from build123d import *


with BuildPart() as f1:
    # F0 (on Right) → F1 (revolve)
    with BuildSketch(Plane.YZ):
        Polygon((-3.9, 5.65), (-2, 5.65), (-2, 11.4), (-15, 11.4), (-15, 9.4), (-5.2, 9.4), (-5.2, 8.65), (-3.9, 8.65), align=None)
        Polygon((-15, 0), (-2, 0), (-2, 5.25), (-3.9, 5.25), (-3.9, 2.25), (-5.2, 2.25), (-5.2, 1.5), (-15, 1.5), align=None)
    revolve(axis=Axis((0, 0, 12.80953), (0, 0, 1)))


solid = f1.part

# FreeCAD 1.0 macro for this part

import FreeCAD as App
import Part
import Sketcher
from FreeCAD import Vector
Q = App.Units.Quantity


def add_polygon(sketch, points):
    """Adds a closed chain of lines whose ends are joined by coincident constraints."""
    first, n = sketch.GeometryCount, len(points)
    for a, b in zip(points, points[1:] + points[:1]):
        sketch.addGeometry(Part.LineSegment(App.Vector(*a, 0), App.Vector(*b, 0)), False)
    for i in range(n):
        sketch.addConstraint(Sketcher.Constraint("Coincident", first + i, 2, first + (i + 1) % n, 1))

doc = App.newDocument("Part")
body = doc.addObject("PartDesign::Body", "Body")
body.AllowCompound = True

sketch1 = body.newObject("Sketcher::SketchObject", "Sketch")
sketch1.AttachmentSupport = (doc.getObject("YZ_Plane"), [""])
sketch1.MapMode = "FlatFace"
add_polygon(sketch1, [(-3.9, 5.7), (-2, 5.7), (-2, 11.4), (-15, 11.4), (-15, 9.4), (-5.2, 9.4), (-5.2, 8.7), (-3.9, 8.7)])
add_polygon(sketch1, [(-15, 0), (-2, 0), (-2, 5.2), (-3.9, 5.2), (-3.9, 2.2), (-5.2, 2.2), (-5.2, 1.5), (-15, 1.5)])
sketch1.addConstraint([
    Sketcher.Constraint("Horizontal", 0),
    Sketcher.Constraint("Vertical", 1),
    Sketcher.Constraint("Horizontal", 2),
    Sketcher.Constraint("Vertical", 3),
    Sketcher.Constraint("Horizontal", 4),
    Sketcher.Constraint("Vertical", 5),
    Sketcher.Constraint("Horizontal", 6),
    Sketcher.Constraint("Vertical", 7),
    Sketcher.Constraint("Horizontal", 8),
    Sketcher.Constraint("Vertical", 9),
    Sketcher.Constraint("Horizontal", 10),
    Sketcher.Constraint("Vertical", 11),
    Sketcher.Constraint("Horizontal", 12),
    Sketcher.Constraint("Vertical", 13),
    Sketcher.Constraint("Horizontal", 14),
    Sketcher.Constraint("Vertical", 15),
    Sketcher.Constraint("PointOnObject", 8, 2, -1),
    Sketcher.Constraint("Vertical", 1, 2, 8, 2),
    Sketcher.Constraint("Vertical", 7, 2, 10, 2),
    Sketcher.Constraint("Vertical", 5, 2, 12, 2),
    Sketcher.Constraint("Vertical", 3, 2, 14, 2),
    Sketcher.Constraint("Equal", 7, 11),
    Sketcher.Constraint("Equal", 5, 13),
    Sketcher.Constraint("DistanceX", 2, 2, 2, 1, Q("13 mm")),
    Sketcher.Constraint("DistanceY", 3, 2, 3, 1, Q("2 mm")),
    Sketcher.Constraint("DistanceY", 7, 2, 7, 1, Q("3 mm")),
    Sketcher.Constraint("DistanceX", 0, 1, 0, 2, Q("1.9 mm")),
    Sketcher.Constraint("DistanceX", 4, 1, 4, 2, Q("9.8 mm")),
    Sketcher.Constraint("DistanceY", 15, 2, 15, 1, Q("1.5 mm")),
    Sketcher.Constraint("DistanceX", 0, 2, -1, 1, Q("2 mm")),
    Sketcher.Constraint("DistanceY", 1, 1, 1, 2, Q("5.75 mm")),
    Sketcher.Constraint("DistanceY", -1, 1, 1, 2, Q("11.4 mm")),
])
revolution = body.newObject("PartDesign::Revolution", "Revolution")
revolution.Profile = sketch1
revolution.ReferenceAxis = (sketch1, ["V_Axis"])
revolution.Angle = 360

doc.recompute()
